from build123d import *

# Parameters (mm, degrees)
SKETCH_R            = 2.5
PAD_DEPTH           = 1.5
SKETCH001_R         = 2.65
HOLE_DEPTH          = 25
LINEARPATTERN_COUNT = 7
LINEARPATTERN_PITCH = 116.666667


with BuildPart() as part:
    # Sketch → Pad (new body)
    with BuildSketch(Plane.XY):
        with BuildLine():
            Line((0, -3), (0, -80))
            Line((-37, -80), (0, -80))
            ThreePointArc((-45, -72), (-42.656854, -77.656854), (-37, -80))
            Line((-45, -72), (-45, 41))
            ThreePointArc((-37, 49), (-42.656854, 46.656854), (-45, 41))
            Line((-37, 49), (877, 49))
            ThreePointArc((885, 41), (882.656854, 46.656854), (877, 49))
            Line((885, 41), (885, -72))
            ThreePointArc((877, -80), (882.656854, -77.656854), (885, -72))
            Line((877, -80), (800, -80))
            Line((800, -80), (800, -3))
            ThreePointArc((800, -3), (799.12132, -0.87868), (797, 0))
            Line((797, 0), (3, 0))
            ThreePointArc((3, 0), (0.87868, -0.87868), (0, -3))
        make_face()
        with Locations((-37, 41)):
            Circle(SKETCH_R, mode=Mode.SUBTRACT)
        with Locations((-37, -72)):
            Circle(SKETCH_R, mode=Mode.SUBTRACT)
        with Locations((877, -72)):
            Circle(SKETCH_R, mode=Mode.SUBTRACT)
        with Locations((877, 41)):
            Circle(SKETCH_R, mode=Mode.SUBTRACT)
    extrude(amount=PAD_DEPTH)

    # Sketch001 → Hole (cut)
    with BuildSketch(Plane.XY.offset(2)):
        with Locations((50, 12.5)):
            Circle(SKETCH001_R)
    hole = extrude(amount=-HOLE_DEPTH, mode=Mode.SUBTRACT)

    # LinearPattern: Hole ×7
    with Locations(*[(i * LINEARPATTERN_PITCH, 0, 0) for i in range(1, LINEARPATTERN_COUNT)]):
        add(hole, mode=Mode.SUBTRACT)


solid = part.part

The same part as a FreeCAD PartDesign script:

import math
import FreeCAD as App
import Part
import Sketcher

V = App.Vector

doc = App.newDocument("Part")
body = doc.addObject("PartDesign::Body", "Body")

# Sketch on XY plane
sketch1 = body.newObject("Sketcher::SketchObject", "Sketch")
sketch1.AttachmentSupport = (doc.getObject("XY_Plane"), [""])
sketch1.MapMode = "FlatFace"
sketch1.addGeometry(Part.LineSegment(V(0, -80, 0), V(0, -3, 0)), False)
sketch1.addGeometry(Part.ArcOfCircle(Part.Circle(V(3, -3, 0), V(0, 0, 1), 3), math.radians(90), math.radians(180)), False)
sketch1.addGeometry(Part.LineSegment(V(3, 0, 0), V(797, 0, 0)), False)
sketch1.addGeometry(Part.ArcOfCircle(Part.Circle(V(797, -3, 0), V(0, 0, 1), 3), math.radians(0), math.radians(90)), False)
sketch1.addGeometry(Part.LineSegment(V(800, -3, 0), V(800, -80, 0)), False)
sketch1.addGeometry(Part.LineSegment(V(800, -80, 0), V(877, -80, 0)), False)
sketch1.addGeometry(Part.ArcOfCircle(Part.Circle(V(877, -72, 0), V(0, 0, 1), 8), math.radians(-90), math.radians(0)), False)
sketch1.addGeometry(Part.LineSegment(V(885, -72, 0), V(885, 41, 0)), False)
sketch1.addGeometry(Part.ArcOfCircle(Part.Circle(V(877, 41, 0), V(0, 0, 1), 8), math.radians(0), math.radians(90)), False)
sketch1.addGeometry(Part.LineSegment(V(877, 49, 0), V(-37, 49, 0)), False)
sketch1.addGeometry(Part.ArcOfCircle(Part.Circle(V(-37, 41, 0), V(0, 0, 1), 8), math.radians(90), math.radians(180)), False)
sketch1.addGeometry(Part.LineSegment(V(-45, 41, 0), V(-45, -72, 0)), False)
sketch1.addGeometry(Part.ArcOfCircle(Part.Circle(V(-37, -72, 0), V(0, 0, 1), 8), math.radians(-180), math.radians(-90)), False)
sketch1.addGeometry(Part.LineSegment(V(-37, -80, 0), V(0, -80, 0)), False)
sketch1.addGeometry(Part.Circle(V(877, -72, 0), V(0, 0, 1), 2.5), False)
sketch1.addGeometry(Part.Circle(V(-37, -72, 0), V(0, 0, 1), 2.5), False)
sketch1.addGeometry(Part.Circle(V(877, 41, 0), V(0, 0, 1), 2.5), False)
sketch1.addGeometry(Part.Circle(V(-37, 41, 0), V(0, 0, 1), 2.5), False)
sketch1.addConstraint(Sketcher.Constraint("Tangent", 0, 2, 1, 2))
sketch1.addConstraint(Sketcher.Constraint("Tangent", 1, 1, 2, 1))
sketch1.addConstraint(Sketcher.Constraint("Tangent", 2, 2, 3, 2))
sketch1.addConstraint(Sketcher.Constraint("Tangent", 3, 1, 4, 1))
sketch1.addConstraint(Sketcher.Constraint("Coincident", 4, 2, 5, 1))
sketch1.addConstraint(Sketcher.Constraint("Tangent", 5, 2, 6, 1))
sketch1.addConstraint(Sketcher.Constraint("Tangent", 6, 2, 7, 1))
sketch1.addConstraint(Sketcher.Constraint("Tangent", 7, 2, 8, 1))
sketch1.addConstraint(Sketcher.Constraint("Tangent", 8, 2, 9, 1))
sketch1.addConstraint(Sketcher.Constraint("Tangent", 9, 2, 10, 1))
sketch1.addConstraint(Sketcher.Constraint("Tangent", 10, 2, 11, 1))
sketch1.addConstraint(Sketcher.Constraint("Tangent", 11, 2, 12, 1))
sketch1.addConstraint(Sketcher.Constraint("Tangent", 12, 2, 13, 1))
sketch1.addConstraint(Sketcher.Constraint("Coincident", 13, 2, 0, 1))
sketch1.addConstraint(Sketcher.Constraint("Vertical", 0))
sketch1.addConstraint(Sketcher.Constraint("Horizontal", 2))
sketch1.addConstraint(Sketcher.Constraint("Vertical", 4))
sketch1.addConstraint(Sketcher.Constraint("Horizontal", 5))
sketch1.addConstraint(Sketcher.Constraint("Vertical", 7))
sketch1.addConstraint(Sketcher.Constraint("Horizontal", 9))
sketch1.addConstraint(Sketcher.Constraint("Vertical", 11))
sketch1.addConstraint(Sketcher.Constraint("Horizontal", 13))
sketch1.addConstraint(Sketcher.Constraint("Coincident", 14, 3, 6, 3))
sketch1.addConstraint(Sketcher.Constraint("Coincident", 15, 3, 12, 3))
sketch1.addConstraint(Sketcher.Constraint("Coincident", 16, 3, 8, 3))
sketch1.addConstraint(Sketcher.Constraint("Coincident", 17, 3, 10, 3))
sketch1.addConstraint(Sketcher.Constraint("Equal", 1, 3))
sketch1.addConstraint(Sketcher.Constraint("Equal", 6, 8))
sketch1.addConstraint(Sketcher.Constraint("Equal", 8, 10))
sketch1.addConstraint(Sketcher.Constraint("Equal", 10, 12))
sketch1.addConstraint(Sketcher.Constraint("Equal", 14, 15))
sketch1.addConstraint(Sketcher.Constraint("Equal", 15, 16))
sketch1.addConstraint(Sketcher.Constraint("Equal", 16, 17))
sketch1.addConstraint(Sketcher.Constraint("PointOnObject", 0, 2, -2))
sketch1.addConstraint(Sketcher.Constraint("PointOnObject", 1, 1, -1))
sketch1.addConstraint(Sketcher.Constraint("Horizontal", 6, 3, 12, 3))
sketch1.addConstraint(Sketcher.Constraint("Equal", 5, 0))
sketch1.addConstraint(Sketcher.Constraint("Diameter", 14, 5.0))
sketch1.addConstraint(Sketcher.Constraint("Radius", 1, 3.000001))
sketch1.addConstraint(Sketcher.Constraint("Radius", 6, 8.000001))
sketch1.addConstraint(Sketcher.Constraint("DistanceX", 2, 1, 2, 2, 794.0))
sketch1.addConstraint(Sketcher.Constraint("DistanceX", 5, 1, 5, 2, 77.0))
sketch1.addConstraint(Sketcher.Constraint("DistanceX", 9, 2, 9, 1, 914.0))
sketch1.addConstraint(Sketcher.Constraint("DistanceY", 7, 1, 7, 2, 113.0))
pad1 = body.newObject("PartDesign::Pad", "Pad")
pad1.Profile = sketch1
pad1.Length = 1.5

# Sketch on XY plane
sketch2 = body.newObject("Sketcher::SketchObject", "Sketch001")
sketch2.AttachmentSupport = (doc.getObject("XY_Plane"), [""])
sketch2.MapMode = "FlatFace"
sketch2.AttachmentOffset = App.Placement(V(0, 0, 2), App.Rotation())
sketch2.addGeometry(Part.Circle(V(50, 12.5, 0), V(0, 0, 1), 2.6), False)
sketch2.addConstraint(Sketcher.Constraint("Diameter", 0, 5.3))
sketch2.addConstraint(Sketcher.Constraint("DistanceX", -1, 1, 0, 3, 50.0))
sketch2.addConstraint(Sketcher.Constraint("DistanceY", -1, 1, 0, 3, 12.5))
pocket1 = body.newObject("PartDesign::Pocket", "Pocket")
pocket1.Profile = sketch2
pocket1.Length = 25
doc.recompute()

linearpattern = body.newObject("PartDesign::LinearPattern", "LinearPattern")
linearpattern.Originals = [pocket1]
linearpattern.Direction = (doc.getObject("X_Axis"), [""])
linearpattern.Mode = "offset"
linearpattern.Offset = 116.666667
linearpattern.Occurrences = 7
body.Tip = linearpattern

doc.recompute()
